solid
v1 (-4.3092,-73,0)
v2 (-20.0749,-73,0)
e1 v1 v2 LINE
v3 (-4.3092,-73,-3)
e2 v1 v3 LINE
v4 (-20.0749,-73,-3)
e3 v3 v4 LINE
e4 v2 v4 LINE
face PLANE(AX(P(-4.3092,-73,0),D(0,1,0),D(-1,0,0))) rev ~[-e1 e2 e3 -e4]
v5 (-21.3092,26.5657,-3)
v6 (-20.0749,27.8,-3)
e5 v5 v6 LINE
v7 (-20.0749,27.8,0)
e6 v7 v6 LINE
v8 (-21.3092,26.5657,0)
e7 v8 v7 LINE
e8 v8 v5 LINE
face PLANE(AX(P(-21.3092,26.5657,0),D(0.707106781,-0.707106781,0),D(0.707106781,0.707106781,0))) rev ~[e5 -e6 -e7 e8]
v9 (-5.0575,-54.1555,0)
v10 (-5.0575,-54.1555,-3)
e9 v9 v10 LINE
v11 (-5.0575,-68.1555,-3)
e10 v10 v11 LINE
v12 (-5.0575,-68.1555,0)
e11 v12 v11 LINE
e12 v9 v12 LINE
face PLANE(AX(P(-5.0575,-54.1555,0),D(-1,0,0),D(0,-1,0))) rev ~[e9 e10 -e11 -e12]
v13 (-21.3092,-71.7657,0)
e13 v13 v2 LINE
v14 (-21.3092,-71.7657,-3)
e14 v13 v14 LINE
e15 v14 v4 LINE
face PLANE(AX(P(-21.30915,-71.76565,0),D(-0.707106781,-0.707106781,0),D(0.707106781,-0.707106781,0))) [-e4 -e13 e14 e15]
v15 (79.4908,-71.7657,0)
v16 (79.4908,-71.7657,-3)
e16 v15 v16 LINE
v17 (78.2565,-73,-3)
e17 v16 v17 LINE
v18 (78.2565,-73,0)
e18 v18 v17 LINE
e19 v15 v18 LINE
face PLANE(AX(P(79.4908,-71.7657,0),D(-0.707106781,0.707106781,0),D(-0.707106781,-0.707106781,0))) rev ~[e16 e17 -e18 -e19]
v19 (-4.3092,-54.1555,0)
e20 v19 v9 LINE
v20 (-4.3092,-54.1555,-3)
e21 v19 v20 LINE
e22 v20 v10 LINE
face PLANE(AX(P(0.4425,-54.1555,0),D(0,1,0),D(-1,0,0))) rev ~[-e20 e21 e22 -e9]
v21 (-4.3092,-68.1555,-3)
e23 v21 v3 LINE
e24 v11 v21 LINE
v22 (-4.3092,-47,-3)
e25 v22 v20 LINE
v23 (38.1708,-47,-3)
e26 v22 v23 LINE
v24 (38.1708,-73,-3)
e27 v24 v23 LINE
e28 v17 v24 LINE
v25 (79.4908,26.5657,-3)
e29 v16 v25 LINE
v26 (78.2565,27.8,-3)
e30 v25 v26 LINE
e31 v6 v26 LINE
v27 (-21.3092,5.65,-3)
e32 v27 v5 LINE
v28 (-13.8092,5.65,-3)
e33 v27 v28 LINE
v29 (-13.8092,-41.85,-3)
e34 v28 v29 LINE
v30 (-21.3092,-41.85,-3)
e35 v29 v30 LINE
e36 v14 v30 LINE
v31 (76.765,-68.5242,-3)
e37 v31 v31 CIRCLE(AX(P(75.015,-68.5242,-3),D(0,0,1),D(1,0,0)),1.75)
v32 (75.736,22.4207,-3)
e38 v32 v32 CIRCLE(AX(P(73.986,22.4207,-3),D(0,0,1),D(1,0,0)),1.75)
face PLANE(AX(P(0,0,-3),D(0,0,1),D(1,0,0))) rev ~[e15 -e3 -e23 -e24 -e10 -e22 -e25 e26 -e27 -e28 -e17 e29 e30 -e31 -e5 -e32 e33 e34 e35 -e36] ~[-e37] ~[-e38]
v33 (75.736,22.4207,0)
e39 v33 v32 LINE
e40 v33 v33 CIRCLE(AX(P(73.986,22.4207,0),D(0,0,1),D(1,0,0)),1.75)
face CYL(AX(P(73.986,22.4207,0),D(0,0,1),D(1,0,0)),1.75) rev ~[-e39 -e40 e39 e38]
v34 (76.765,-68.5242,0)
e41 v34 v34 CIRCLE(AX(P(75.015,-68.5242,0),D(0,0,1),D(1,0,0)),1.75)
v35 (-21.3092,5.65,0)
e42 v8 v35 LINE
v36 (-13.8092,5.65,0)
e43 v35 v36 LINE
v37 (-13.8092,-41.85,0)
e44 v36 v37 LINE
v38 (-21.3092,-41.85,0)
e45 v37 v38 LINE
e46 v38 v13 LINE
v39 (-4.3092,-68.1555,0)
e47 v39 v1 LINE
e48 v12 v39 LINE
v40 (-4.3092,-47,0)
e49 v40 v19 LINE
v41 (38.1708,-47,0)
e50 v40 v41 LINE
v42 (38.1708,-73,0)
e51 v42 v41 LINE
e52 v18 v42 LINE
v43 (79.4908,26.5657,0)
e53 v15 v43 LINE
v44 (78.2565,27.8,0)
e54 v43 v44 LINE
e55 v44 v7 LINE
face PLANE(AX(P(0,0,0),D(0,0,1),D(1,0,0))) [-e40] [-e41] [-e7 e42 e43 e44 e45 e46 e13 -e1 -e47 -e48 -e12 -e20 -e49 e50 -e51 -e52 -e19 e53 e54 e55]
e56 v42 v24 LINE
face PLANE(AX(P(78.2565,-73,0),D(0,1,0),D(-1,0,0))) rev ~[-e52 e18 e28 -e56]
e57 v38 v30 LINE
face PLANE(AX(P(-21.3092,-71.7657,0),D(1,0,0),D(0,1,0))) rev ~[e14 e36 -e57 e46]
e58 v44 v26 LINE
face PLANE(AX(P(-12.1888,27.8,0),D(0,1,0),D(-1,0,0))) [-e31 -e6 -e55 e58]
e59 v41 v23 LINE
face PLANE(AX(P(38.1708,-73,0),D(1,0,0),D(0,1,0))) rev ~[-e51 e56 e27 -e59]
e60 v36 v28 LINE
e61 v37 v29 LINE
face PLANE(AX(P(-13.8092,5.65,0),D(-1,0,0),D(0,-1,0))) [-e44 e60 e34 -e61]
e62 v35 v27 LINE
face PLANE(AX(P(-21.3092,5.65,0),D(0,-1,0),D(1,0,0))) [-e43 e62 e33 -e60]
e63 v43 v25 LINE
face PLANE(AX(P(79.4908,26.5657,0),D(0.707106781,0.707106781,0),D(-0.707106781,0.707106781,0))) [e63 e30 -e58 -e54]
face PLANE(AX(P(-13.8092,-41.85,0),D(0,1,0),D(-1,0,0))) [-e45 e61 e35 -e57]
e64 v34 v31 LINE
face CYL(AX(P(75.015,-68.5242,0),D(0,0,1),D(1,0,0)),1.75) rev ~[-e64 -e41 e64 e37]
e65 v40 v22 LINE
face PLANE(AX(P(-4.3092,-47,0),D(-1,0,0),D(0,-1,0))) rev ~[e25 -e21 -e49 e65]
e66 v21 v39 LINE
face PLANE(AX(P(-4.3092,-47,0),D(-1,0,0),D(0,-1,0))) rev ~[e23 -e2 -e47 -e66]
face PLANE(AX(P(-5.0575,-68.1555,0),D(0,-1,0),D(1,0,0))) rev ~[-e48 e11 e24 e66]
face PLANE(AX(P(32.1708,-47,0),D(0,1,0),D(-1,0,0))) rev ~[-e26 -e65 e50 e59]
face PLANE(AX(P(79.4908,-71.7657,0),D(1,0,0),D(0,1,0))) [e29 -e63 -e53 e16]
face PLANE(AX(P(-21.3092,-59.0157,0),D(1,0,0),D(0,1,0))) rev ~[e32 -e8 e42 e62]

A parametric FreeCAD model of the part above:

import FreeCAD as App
import Part
import Sketcher
from FreeCAD import Vector
Q = App.Units.Quantity


def add_polygon(sketch, points):
    """Adds a closed chain of lines whose ends are joined by coincident constraints."""
    first, n = sketch.GeometryCount, len(points)
    for a, b in zip(points, points[1:] + points[:1]):
        sketch.addGeometry(Part.LineSegment(App.Vector(*a, 0), App.Vector(*b, 0)), False)
    for i in range(n):
        sketch.addConstraint(Sketcher.Constraint("Coincident", first + i, 2, first + (i + 1) % n, 1))

doc = App.newDocument("Part")
body = doc.addObject("PartDesign::Body", "Body")

sketch1 = body.newObject("Sketcher::SketchObject", "Sketch")
sketch1.AttachmentSupport = (doc.getObject("XY_Plane"), [""])
sketch1.MapMode = "FlatFace"
add_polygon(sketch1, [(32.1708, -47), (32.1708, -73), (78.2565, -73), (79.4908, -71.7657), (79.4908, 26.5657), (78.2565, 27.8), (-20.0749, 27.8), (-21.3092, 26.5657), (-21.30915, -71.76565), (-20.0749, -73), (-4.3092, -73), (-4.3092, -47)])
sketch1.addGeometry(Part.Circle(Vector(-17.5342, -45.35, 0), Vector(0, 0, 1), 1.75), False)
sketch1.addGeometry(Part.Circle(Vector(75.015, -68.5242, 0), Vector(0, 0, 1), 1.75), False)
sketch1.addGeometry(Part.Circle(Vector(73.986, 22.4207, 0), Vector(0, 0, 1), 1.75), False)
sketch1.addConstraint([
    Sketcher.Constraint("Vertical", 0),
    Sketcher.Constraint("Horizontal", 1),
    Sketcher.Constraint("Vertical", 3),
    Sketcher.Constraint("Horizontal", 5),
    Sketcher.Constraint("Vertical", 7),
    Sketcher.Constraint("Horizontal", 9),
    Sketcher.Constraint("Vertical", 10),
    Sketcher.Constraint("Horizontal", 11),
    Sketcher.Constraint("Equal", 12, 13),
    Sketcher.Constraint("Equal", 13, 14),
    Sketcher.Constraint("Perpendicular", 2, 4),
    Sketcher.Constraint("Perpendicular", 4, 6),
    Sketcher.Constraint("Perpendicular", 6, 8),
    Sketcher.Constraint("Horizontal", 3, 2, 6, 2),
    Sketcher.Constraint("Horizontal", 2, 2, 7, 2),
    Sketcher.Constraint("Horizontal", 1, 2, 8, 2),
    Sketcher.Constraint("Vertical", 1, 2, 4, 2),
    Sketcher.Constraint("Vertical", 5, 2, 8, 2),
    Sketcher.Constraint("Equal", 5, 3),
    Sketcher.Constraint("Diameter", 12, Q("3.5 mm")),
    Sketcher.Constraint("DistanceY", 0, 2, 0, 1, Q("26 mm")),
    Sketcher.Constraint("DistanceY", 0, 2, -1, 1, Q("73 mm")),
    Sketcher.Constraint("DistanceX", 7, 2, 9, 2, Q("17 mm")),
    Sketcher.Constraint("DistanceX", 11, 1, 11, 2, Q("36.48 mm")),
    Sketcher.Constraint("DistanceY", -1, 1, 4, 2, Q("27.8 mm")),
    Sketcher.Constraint("DistanceY", 12, 3, -1, 1, Q("45.35 mm")),
    Sketcher.Constraint("DistanceY", 13, 3, 3, 2, Q("95.09 mm")),
    Sketcher.Constraint("DistanceX", 1, 1, 1, 2, Q("46.0857 mm")),
    Sketcher.Constraint("DistanceX", -1, 1, 13, 3, Q("75.015 mm")),
    Sketcher.Constraint("DistanceX", -1, 1, 14, 3, Q("73.986 mm")),
    Sketcher.Constraint("DistanceX", 5, 2, -1, 1, Q("20.075 mm")),
    Sketcher.Constraint("DistanceY", 13, 3, 14, 3, Q("90.945 mm")),
    Sketcher.Constraint("DistanceX", 12, 3, 0, 2, Q("49.705 mm")),
])
pad1 = body.newObject("PartDesign::Pad", "Pad")
pad1.Profile = sketch1
pad1.Length = 3
pad1.Reversed = True

sketch2 = body.newObject("Sketcher::SketchObject", "Sketch001")
sketch2.AttachmentSupport = (doc.getObject("XY_Plane"), [""])
sketch2.MapMode = "FlatFace"
add_polygon(sketch2, [(-21.3092, 5.65), (-21.3092, -41.85), (-13.8092, -41.85), (-13.8092, 5.65)])
sketch2.addConstraint([
    Sketcher.Constraint("Vertical", 0),
    Sketcher.Constraint("Horizontal", 1),
    Sketcher.Constraint("Vertical", 2),
    Sketcher.Constraint("Horizontal", 3),
    Sketcher.Constraint("DistanceX", 1, 1, 1, 2, Q("7.5 mm")),
    Sketcher.Constraint("DistanceY", 0, 2, 0, 1, Q("47.5 mm")),
    Sketcher.Constraint("DistanceY", 0, 2, -1, 1, Q("41.85 mm")),
    Sketcher.Constraint("DistanceX", 0, 2, -1, 1, Q("21.3092 mm")),
])
pocket1 = body.newObject("PartDesign::Pocket", "Pocket")
pocket1.Profile = sketch2
pocket1.Length = 3

sketch3 = body.newObject("Sketcher::SketchObject", "Sketch002")
sketch3.AttachmentSupport = (doc.getObject("XY_Plane"), [""])
sketch3.MapMode = "FlatFace"
sketch3.addGeometry(Part.Circle(Vector(-17.5342, -45.35, 0), Vector(0, 0, 1), 1.75), False)
sketch3.addConstraint([
    Sketcher.Constraint("Diameter", 0, Q("3.5 mm")),
    Sketcher.Constraint("DistanceY", 0, 3, -1, 1, Q("45.35 mm")),
    Sketcher.Constraint("DistanceX", 0, 3, -1, 1, Q("17.5342 mm")),
])
pad2 = body.newObject("PartDesign::Pad", "Pad001")
pad2.Profile = sketch3
pad2.Length = 3
pad2.Reversed = True

sketch4 = body.newObject("Sketcher::SketchObject", "Sketch003")
sketch4.AttachmentSupport = (doc.getObject("XY_Plane"), [""])
sketch4.MapMode = "FlatFace"
add_polygon(sketch4, [(0.4425, -68.1555), (0.4425, -54.1555), (-5.0575, -54.1555), (-5.0575, -68.1555)])
sketch4.addConstraint([
    Sketcher.Constraint("Vertical", 0),
    Sketcher.Constraint("Horizontal", 1),
    Sketcher.Constraint("Vertical", 2),
    Sketcher.Constraint("Horizontal", 3),
    Sketcher.Constraint("DistanceY", 0, 1, 0, 2, Q("14 mm")),
    Sketcher.Constraint("DistanceX", 1, 2, 1, 1, Q("5.5 mm")),
    Sketcher.Constraint("DistanceX", -1, 1, 0, 2, Q("0.4425 mm")),
    Sketcher.Constraint("DistanceY", 0, 2, -1, 1, Q("54.1555 mm")),
])
pocket2 = body.newObject("PartDesign::Pocket", "Pocket001")
pocket2.Profile = sketch4
pocket2.Length = 3

sketch5 = body.newObject("Sketcher::SketchObject", "Sketch004")
sketch5.AttachmentSupport = (doc.getObject("XY_Plane"), [""])
sketch5.MapMode = "FlatFace"
add_polygon(sketch5, [(38.1708, -47), (32.1708, -47), (32.1708, -73), (38.1708, -73)])
sketch5.addConstraint([
    Sketcher.Constraint("Horizontal", 0),
    Sketcher.Constraint("Vertical", 1),
    Sketcher.Constraint("Horizontal", 2),
    Sketcher.Constraint("Vertical", 3),
    Sketcher.Constraint("DistanceX", 0, 2, 0, 1, Q("6 mm")),
    Sketcher.Constraint("DistanceY", 1, 2, 1, 1, Q("26 mm")),
    Sketcher.Constraint("DistanceY", 0, 2, -1, 1, Q("47 mm")),
    Sketcher.Constraint("DistanceX", -1, 1, 0, 2, Q("32.1708 mm")),
])
pocket3 = body.newObject("PartDesign::Pocket", "Pocket002")
pocket3.Profile = sketch5
pocket3.Length = 10

doc.recompute()
